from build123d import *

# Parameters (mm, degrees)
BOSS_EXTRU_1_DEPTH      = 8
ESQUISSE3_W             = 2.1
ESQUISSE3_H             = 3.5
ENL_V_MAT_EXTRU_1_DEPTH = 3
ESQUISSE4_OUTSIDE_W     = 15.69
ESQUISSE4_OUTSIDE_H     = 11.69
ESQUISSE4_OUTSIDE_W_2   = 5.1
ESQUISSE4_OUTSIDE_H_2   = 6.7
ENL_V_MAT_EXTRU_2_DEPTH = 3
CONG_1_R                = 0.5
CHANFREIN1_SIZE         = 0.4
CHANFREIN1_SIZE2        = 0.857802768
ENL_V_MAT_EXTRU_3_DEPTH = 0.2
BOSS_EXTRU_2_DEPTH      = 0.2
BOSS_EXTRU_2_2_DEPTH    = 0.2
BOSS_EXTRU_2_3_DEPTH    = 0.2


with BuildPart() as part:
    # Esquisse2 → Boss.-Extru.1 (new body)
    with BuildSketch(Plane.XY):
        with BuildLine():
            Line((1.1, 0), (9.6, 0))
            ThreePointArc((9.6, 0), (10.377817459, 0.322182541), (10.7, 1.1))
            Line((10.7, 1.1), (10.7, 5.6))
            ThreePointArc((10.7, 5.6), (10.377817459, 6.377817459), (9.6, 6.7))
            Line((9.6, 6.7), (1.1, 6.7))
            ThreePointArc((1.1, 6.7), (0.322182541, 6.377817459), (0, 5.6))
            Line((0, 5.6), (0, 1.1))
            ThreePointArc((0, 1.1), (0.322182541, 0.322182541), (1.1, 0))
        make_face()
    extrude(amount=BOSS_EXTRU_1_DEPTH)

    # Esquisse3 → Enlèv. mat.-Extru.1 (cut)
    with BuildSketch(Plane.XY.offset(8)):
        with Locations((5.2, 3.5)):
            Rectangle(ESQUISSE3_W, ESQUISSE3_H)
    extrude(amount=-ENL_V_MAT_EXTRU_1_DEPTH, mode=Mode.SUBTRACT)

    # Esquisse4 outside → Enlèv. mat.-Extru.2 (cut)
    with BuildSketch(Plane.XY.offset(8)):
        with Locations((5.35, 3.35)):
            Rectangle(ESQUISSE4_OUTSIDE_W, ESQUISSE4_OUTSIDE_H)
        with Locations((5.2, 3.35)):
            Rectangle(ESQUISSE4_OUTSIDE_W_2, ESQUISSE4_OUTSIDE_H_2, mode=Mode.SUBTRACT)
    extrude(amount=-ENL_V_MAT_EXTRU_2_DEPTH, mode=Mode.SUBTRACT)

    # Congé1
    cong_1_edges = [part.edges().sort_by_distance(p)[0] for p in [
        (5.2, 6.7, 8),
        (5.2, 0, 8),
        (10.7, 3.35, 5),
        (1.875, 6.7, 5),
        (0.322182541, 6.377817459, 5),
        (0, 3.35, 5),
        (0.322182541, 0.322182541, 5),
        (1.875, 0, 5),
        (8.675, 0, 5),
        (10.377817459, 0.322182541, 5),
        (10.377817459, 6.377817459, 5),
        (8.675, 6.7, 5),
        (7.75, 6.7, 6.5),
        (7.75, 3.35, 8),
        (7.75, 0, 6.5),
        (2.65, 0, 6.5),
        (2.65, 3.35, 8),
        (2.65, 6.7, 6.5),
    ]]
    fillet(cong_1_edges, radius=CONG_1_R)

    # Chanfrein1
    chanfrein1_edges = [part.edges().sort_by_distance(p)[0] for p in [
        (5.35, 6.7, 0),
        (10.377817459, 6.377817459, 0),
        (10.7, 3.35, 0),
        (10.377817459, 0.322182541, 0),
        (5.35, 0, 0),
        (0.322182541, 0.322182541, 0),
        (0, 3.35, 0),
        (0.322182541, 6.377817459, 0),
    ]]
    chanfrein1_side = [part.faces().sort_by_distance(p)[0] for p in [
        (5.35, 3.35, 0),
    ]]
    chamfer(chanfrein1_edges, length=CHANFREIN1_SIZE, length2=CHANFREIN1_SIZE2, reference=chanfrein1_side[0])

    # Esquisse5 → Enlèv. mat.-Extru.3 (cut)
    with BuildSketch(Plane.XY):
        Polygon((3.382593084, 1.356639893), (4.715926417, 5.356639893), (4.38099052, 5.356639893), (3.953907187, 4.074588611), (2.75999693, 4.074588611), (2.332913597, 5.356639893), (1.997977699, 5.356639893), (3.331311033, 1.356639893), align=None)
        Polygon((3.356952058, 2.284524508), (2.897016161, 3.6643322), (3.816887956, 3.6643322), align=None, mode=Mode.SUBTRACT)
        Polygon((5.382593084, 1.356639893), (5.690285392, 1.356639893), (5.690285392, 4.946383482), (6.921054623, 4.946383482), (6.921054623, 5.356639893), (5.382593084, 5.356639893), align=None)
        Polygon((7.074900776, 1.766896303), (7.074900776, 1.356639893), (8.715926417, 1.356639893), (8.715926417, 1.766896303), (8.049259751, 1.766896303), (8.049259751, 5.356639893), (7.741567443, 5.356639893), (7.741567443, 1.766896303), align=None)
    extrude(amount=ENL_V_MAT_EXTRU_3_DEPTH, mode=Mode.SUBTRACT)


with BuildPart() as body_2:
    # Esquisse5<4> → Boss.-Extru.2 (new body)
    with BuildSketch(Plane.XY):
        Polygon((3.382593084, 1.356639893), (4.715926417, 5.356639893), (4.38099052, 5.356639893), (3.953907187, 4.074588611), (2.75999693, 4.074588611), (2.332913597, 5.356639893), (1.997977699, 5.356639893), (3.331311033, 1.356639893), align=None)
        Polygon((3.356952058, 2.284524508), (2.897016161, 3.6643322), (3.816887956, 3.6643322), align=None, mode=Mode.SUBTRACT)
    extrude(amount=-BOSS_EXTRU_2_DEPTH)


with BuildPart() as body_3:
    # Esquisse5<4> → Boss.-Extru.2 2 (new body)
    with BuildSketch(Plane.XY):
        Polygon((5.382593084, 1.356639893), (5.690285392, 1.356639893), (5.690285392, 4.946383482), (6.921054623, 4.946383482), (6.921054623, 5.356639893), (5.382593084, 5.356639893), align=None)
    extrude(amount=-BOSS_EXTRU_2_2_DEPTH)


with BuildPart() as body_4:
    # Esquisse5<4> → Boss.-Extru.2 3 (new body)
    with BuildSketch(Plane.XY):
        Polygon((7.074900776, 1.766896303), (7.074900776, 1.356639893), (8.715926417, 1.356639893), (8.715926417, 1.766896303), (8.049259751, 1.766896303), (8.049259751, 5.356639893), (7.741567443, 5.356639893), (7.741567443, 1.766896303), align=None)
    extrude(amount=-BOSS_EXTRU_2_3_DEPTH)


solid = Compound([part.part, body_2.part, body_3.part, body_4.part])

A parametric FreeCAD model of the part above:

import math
import FreeCAD as App
import Part
import Sketcher
Q = App.Units.Quantity


def edges_at(feature, points):
    """Names of the edges that pass closest to the given points."""
    edges = feature.Shape.Edges
    near = lambda p: min(range(len(edges)), key=lambda i: edges[i].distToShape(Part.Vertex(*p))[0])
    return sorted({f"Edge{near(p) + 1}" for p in points})


def add_polygon(sketch, points):
    """Adds a closed chain of lines whose ends are joined by coincident constraints."""
    first, n = sketch.GeometryCount, len(points)
    for a, b in zip(points, points[1:] + points[:1]):
        sketch.addGeometry(Part.LineSegment(App.Vector(*a, 0), App.Vector(*b, 0)), False)
    for i in range(n):
        sketch.addConstraint(Sketcher.Constraint("Coincident", first + i, 2, first + (i + 1) % n, 1))

doc = App.newDocument("Part")
params = doc.addObject("Spreadsheet::Sheet", "Params")
for row, (alias, value) in enumerate([
    ("sketch1_radius", "1.1 mm"),
    ("sketch1_width", "8.5 mm"),
    ("sketch1_height", "4.5 mm"),
    ("pad1_length", "8 mm"),
    ("sketch2_width", "2.1 mm"),
    ("sketch2_height", "3.5 mm"),
    ("pocket1_length", "3 mm"),
    ("sketch3_width", "5.1 mm"),
    ("sketch3_height", "6.7 mm"),
    ("sketch3_width2", "15.69 mm"),
    ("sketch3_height2", "11.69 mm"),
    ("pocket2_length", "3 mm"),
    ("fillet_radius", "0.5 mm"),
    ("chamfer_size", "0.4 mm"),
    ("chamfer_size2", "0.857803 mm"),
    ("sketch4_height", "4 mm"),
    ("pocket3_length", "0.2 mm"),
    ("pad2_length", "0.2 mm"),
    ("sketch6_height", "4 mm"),
    ("pad3_length", "0.2 mm"),
    ("pad4_length", "0.2 mm"),
], start=1):
    params.set(f"A{row}", alias)
    params.set(f"B{row}", "=" + value)
    params.setAlias(f"B{row}", alias)

body = doc.addObject("PartDesign::Body", "Body")

# Sketch on XY plane
sketch1 = doc.addObject("Sketcher::SketchObject", "Sketch")
body.addObject(sketch1)
sketch1.AttachmentSupport = (doc.XY_Plane, [""])
sketch1.MapMode = "FlatFace"
sketch1.addGeometry([
    Part.LineSegment(App.Vector(1.1, 0, 0), App.Vector(9.6, 0, 0)),  # 0
    Part.ArcOfCircle(Part.Circle(App.Vector(9.6, 1.1, 0), App.Vector(0, 0, 1), 1.1), math.radians(-90), math.radians(0)),  # 1
    Part.LineSegment(App.Vector(10.7, 1.1, 0), App.Vector(10.7, 5.6, 0)),  # 2
    Part.ArcOfCircle(Part.Circle(App.Vector(9.6, 5.6, 0), App.Vector(0, 0, 1), 1.1), math.radians(0), math.radians(90)),  # 3
    Part.LineSegment(App.Vector(9.6, 6.7, 0), App.Vector(1.1, 6.7, 0)),  # 4
    Part.ArcOfCircle(Part.Circle(App.Vector(1.1, 5.6, 0), App.Vector(0, 0, 1), 1.1), math.radians(90), math.radians(180)),  # 5
    Part.LineSegment(App.Vector(0, 5.6, 0), App.Vector(0, 1.1, 0)),  # 6
    Part.ArcOfCircle(Part.Circle(App.Vector(1.1, 1.1, 0), App.Vector(0, 0, 1), 1.1), math.radians(-180), math.radians(-90)),  # 7
], False)
sketch1.addConstraint([
    Sketcher.Constraint("Tangent", 0, 2, 1, 1),
    Sketcher.Constraint("Tangent", 1, 2, 2, 1),
    Sketcher.Constraint("Tangent", 2, 2, 3, 1),
    Sketcher.Constraint("Tangent", 3, 2, 4, 1),
    Sketcher.Constraint("Tangent", 4, 2, 5, 1),
    Sketcher.Constraint("Tangent", 5, 2, 6, 1),
    Sketcher.Constraint("Tangent", 6, 2, 7, 1),
    Sketcher.Constraint("Tangent", 7, 2, 0, 1),
    Sketcher.Constraint("Horizontal", 0),
    Sketcher.Constraint("Vertical", 2),
    Sketcher.Constraint("Horizontal", 4),
    Sketcher.Constraint("Vertical", 6),
    Sketcher.Constraint("Equal", 1, 3),
    Sketcher.Constraint("Equal", 3, 5),
    Sketcher.Constraint("Equal", 5, 7),
    Sketcher.Constraint("PointOnObject", 0, 2, -1),
    Sketcher.Constraint("PointOnObject", 5, 2, -2),
    Sketcher.Constraint("Radius", 1, Q("1.1 mm")),
    Sketcher.Constraint("DistanceX", 0, 1, 0, 2, Q("8.5 mm")),
    Sketcher.Constraint("DistanceY", 2, 1, 2, 2, Q("4.5 mm")),
])
sketch1.setExpression("Constraints[17]", "Params.sketch1_radius")
sketch1.setExpression("Constraints[18]", "Params.sketch1_width")
sketch1.setExpression("Constraints[19]", "Params.sketch1_height")
pad1 = doc.addObject("PartDesign::Pad", "Pad")
body.addObject(pad1)
pad1.Profile = sketch1
pad1.setExpression("Length", "Params.pad1_length")

# Sketch on XY plane
sketch2 = doc.addObject("Sketcher::SketchObject", "Sketch001")
body.addObject(sketch2)
sketch2.AttachmentSupport = (doc.XY_Plane, [""])
sketch2.MapMode = "FlatFace"
sketch2.AttachmentOffset = App.Placement(App.Vector(0, 0, 8), App.Rotation())
add_polygon(sketch2, [(4.15, 5.25), (4.15, 1.75), (6.25, 1.75), (6.25, 5.25)])  # lines 0-3
sketch2.addConstraint([
    Sketcher.Constraint("Vertical", 0),
    Sketcher.Constraint("Horizontal", 1),
    Sketcher.Constraint("Vertical", 2),
    Sketcher.Constraint("Horizontal", 3),
    Sketcher.Constraint("DistanceX", 1, 1, 1, 2, Q("2.1 mm")),
    Sketcher.Constraint("DistanceY", 0, 2, 0, 1, Q("3.5 mm")),
    Sketcher.Constraint("DistanceX", -1, 1, 0, 2, Q("4.15 mm")),
    Sketcher.Constraint("DistanceY", -1, 1, 0, 2, Q("1.75 mm")),
])
sketch2.setExpression("Constraints[8]", "Params.sketch2_width")
sketch2.setExpression("Constraints[9]", "Params.sketch2_height")
pocket1 = doc.addObject("PartDesign::Pocket", "Pocket")
body.addObject(pocket1)
pocket1.Profile = sketch2
pocket1.setExpression("Length", "Params.pocket1_length")

# Sketch on XY plane
sketch3 = doc.addObject("Sketcher::SketchObject", "Sketch002")
body.addObject(sketch3)
sketch3.AttachmentSupport = (doc.XY_Plane, [""])
sketch3.MapMode = "FlatFace"
sketch3.AttachmentOffset = App.Placement(App.Vector(0, 0, 8), App.Rotation())
add_polygon(sketch3, [(-2.495, 9.195), (-2.495, -2.495), (13.195, -2.495), (13.195, 9.195)])  # lines 0-3
add_polygon(sketch3, [(7.75, 0), (2.65, 0), (2.65, 6.7), (7.75, 6.7)])  # lines 4-7
sketch3.addConstraint([
    Sketcher.Constraint("Vertical", 0),
    Sketcher.Constraint("Horizontal", 1),
    Sketcher.Constraint("Vertical", 2),
    Sketcher.Constraint("Horizontal", 3),
    Sketcher.Constraint("Horizontal", 4),
    Sketcher.Constraint("Vertical", 5),
    Sketcher.Constraint("Horizontal", 6),
    Sketcher.Constraint("Vertical", 7),
    Sketcher.Constraint("PointOnObject", 4, 2, -1),
    Sketcher.Constraint("DistanceX", 4, 2, 4, 1, Q("5.1 mm")),
    Sketcher.Constraint("DistanceY", 5, 1, 5, 2, Q("6.7 mm")),
    Sketcher.Constraint("DistanceX", 1, 1, 1, 2, Q("15.69 mm")),
    Sketcher.Constraint("DistanceY", 0, 2, 0, 1, Q("11.69 mm")),
    Sketcher.Constraint("DistanceX", -1, 1, 4, 2, Q("2.65 mm")),
    Sketcher.Constraint("DistanceX", 0, 2, -1, 1, Q("2.495 mm")),
    Sketcher.Constraint("DistanceY", 0, 2, -1, 1, Q("2.495 mm")),
])
sketch3.setExpression("Constraints[17]", "Params.sketch3_width")
sketch3.setExpression("Constraints[18]", "Params.sketch3_height")
sketch3.setExpression("Constraints[19]", "Params.sketch3_width2")
sketch3.setExpression("Constraints[20]", "Params.sketch3_height2")
pocket2 = doc.addObject("PartDesign::Pocket", "Pocket001")
body.addObject(pocket2)
pocket2.Profile = sketch3
pocket2.setExpression("Length", "Params.pocket2_length")
doc.recompute()

fillet = doc.addObject("PartDesign::Fillet", "Fillet")
body.addObject(fillet)
fillet.Base = (pocket2, edges_at(pocket2, [
    (5.2, 6.7, 8),
    (5.2, 0, 8),
    (10.7, 3.35, 5),
    (1.875, 6.7, 5),
    (0.322, 6.378, 5),
    (0, 3.35, 5),
    (0.322, 0.322, 5),
    (1.875, 0, 5),
    (8.675, 0, 5),
    (10.378, 0.322, 5),
    (10.378, 6.378, 5),
    (8.675, 6.7, 5),
    (7.75, 6.7, 6.5),
    (7.75, 3.35, 8),
    (7.75, 0, 6.5),
    (2.65, 0, 6.5),
    (2.65, 3.35, 8),
    (2.65, 6.7, 6.5),
]))
fillet.setExpression("Radius", "Params.fillet_radius")
doc.recompute()

chamfer = doc.addObject("PartDesign::Chamfer", "Chamfer")
body.addObject(chamfer)
chamfer.Base = (fillet, edges_at(fillet, [
    (5.35, 6.7, 0),
    (10.378, 6.378, 0),
    (10.7, 3.35, 0),
    (10.378, 0.322, 0),
    (5.35, 0, 0),
    (0.322, 0.322, 0),
    (0, 3.35, 0),
    (0.322, 6.378, 0),
]))
chamfer.ChamferType = "Two distances"
chamfer.setExpression("Size", "Params.chamfer_size")
chamfer.setExpression("Size2", "Params.chamfer_size2")

# Sketch on XY plane
sketch4 = doc.addObject("Sketcher::SketchObject", "Sketch003")
body.addObject(sketch4)
sketch4.AttachmentSupport = (doc.XY_Plane, [""])
sketch4.MapMode = "FlatFace"
add_polygon(sketch4, [(3.382593, 1.35664), (4.715926, 5.35664), (4.380991, 5.35664), (3.953907, 4.074589), (2.759997, 4.074589), (2.332914, 5.35664), (1.997978, 5.35664), (3.331311, 1.35664)])  # lines 0-7
add_polygon(sketch4, [(3.816888, 3.664332), (3.356952, 2.284525), (2.897016, 3.664332)])  # lines 8-10
add_polygon(sketch4, [(5.382593, 1.35664), (5.690285, 1.35664), (5.690285, 4.946383), (6.921055, 4.946383), (6.921055, 5.35664), (5.382593, 5.35664)])  # lines 11-16
add_polygon(sketch4, [(7.074901, 1.766896), (7.074901, 1.35664), (8.715926, 1.35664), (8.715926, 1.766896), (8.04926, 1.766896), (8.04926, 5.35664), (7.741567, 5.35664), (7.741567, 1.766896)])  # lines 17-24
sketch4.addConstraint([
    Sketcher.Constraint("Horizontal", 1),
    Sketcher.Constraint("Horizontal", 3),
    Sketcher.Constraint("Horizontal", 5),
    Sketcher.Constraint("Horizontal", 7),
    Sketcher.Constraint("Horizontal", 10),
    Sketcher.Constraint("Horizontal", 11),
    Sketcher.Constraint("Vertical", 12),
    Sketcher.Constraint("Horizontal", 13),
    Sketcher.Constraint("Vertical", 14),
    Sketcher.Constraint("Horizontal", 15),
    Sketcher.Constraint("Vertical", 16),
    Sketcher.Constraint("Vertical", 17),
    Sketcher.Constraint("Horizontal", 18),
    Sketcher.Constraint("Vertical", 19),
    Sketcher.Constraint("Horizontal", 20),
    Sketcher.Constraint("Vertical", 21),
    Sketcher.Constraint("Horizontal", 22),
    Sketcher.Constraint("Vertical", 23),
    Sketcher.Constraint("Horizontal", 24),
    Sketcher.Constraint("Parallel", 0, 8),
    Sketcher.Constraint("Parallel", 6, 9),
    Sketcher.Constraint("Horizontal", 1, 2, 4, 2),
    Sketcher.Constraint("Horizontal", 7, 2, 11, 2),
    Sketcher.Constraint("Horizontal", 5, 2, 14, 2),
    Sketcher.Constraint("Horizontal", 16, 2, 17, 2),
    Sketcher.Constraint("Horizontal", 15, 2, 21, 2),
    Sketcher.Constraint("Horizontal", 20, 2, 23, 2),
    Sketcher.Constraint("Equal", 1, 5),
    Sketcher.Constraint("Equal", 11, 22),
    Sketcher.Constraint("Equal", 20, 24),
    Sketcher.Constraint("Equal", 14, 17),
    Sketcher.Constraint("Equal", 2, 4),
    Sketcher.Constraint("Equal", 0, 6),
    Sketcher.Constraint("DistanceY", 16, 2, 16, 1, Q("4 mm")),
    Sketcher.Constraint("DistanceX", 7, 2, 16, 2, Q("2 mm")),
    Sketcher.Constraint("DistanceX", 3, 2, 3, 1, Q("1.19391 mm")),
    Sketcher.Constraint("DistanceX", 10, 1, 10, 2, Q("0.919872 mm")),
    Sketcher.Constraint("DistanceX", 13, 1, 13, 2, Q("1.230769 mm")),
    Sketcher.Constraint("DistanceX", 15, 2, 15, 1, Q("1.538462 mm")),
    Sketcher.Constraint("DistanceX", -1, 1, 17, 2, Q("7.074901 mm")),
    Sketcher.Constraint("Distance", 0, Q("4.21637 mm")),
    Sketcher.Constraint("DistanceX", 1, 2, 1, 1, Q("0.334936 mm")),
    Sketcher.Constraint("DistanceX", 7, 1, 7, 2, Q("0.051282 mm")),
    Sketcher.Constraint("DistanceX", 18, 1, 18, 2, Q("1.641026 mm")),
    Sketcher.Constraint("DistanceY", 12, 1, 12, 2, Q("3.589744 mm")),
    Sketcher.Constraint("DistanceY", -1, 1, 0, 2, Q("5.35664 mm")),
    Sketcher.Constraint("DistanceX", -1, 1, 1, 2, Q("4.380991 mm")),
    Sketcher.Constraint("DistanceY", -1, 1, 2, 2, Q("4.074589 mm")),
    Sketcher.Constraint("DistanceX", 6, 2, 8, 2, Q("0.025641 mm")),
    Sketcher.Constraint("DistanceY", 10, 2, 12, 2, Q("1.282051 mm")),
])
sketch4.setExpression("Constraints[58]", "Params.sketch4_height")
pocket3 = doc.addObject("PartDesign::Pocket", "Pocket002")
body.addObject(pocket3)
pocket3.Profile = sketch4
pocket3.setExpression("Length", "Params.pocket3_length")
pocket3.Reversed = True
body2 = doc.addObject("PartDesign::Body", "Body001")

# Sketch on XY plane
sketch5 = doc.addObject("Sketcher::SketchObject", "Sketch004")
body2.addObject(sketch5)
sketch5.AttachmentSupport = (doc.getObject("XY_Plane001"), [""])
sketch5.MapMode = "FlatFace"
add_polygon(sketch5, [(3.382593, 1.35664), (4.715926, 5.35664), (4.380991, 5.35664), (3.953907, 4.074589), (2.759997, 4.074589), (2.332914, 5.35664), (1.997978, 5.35664), (3.331311, 1.35664)])  # lines 0-7
add_polygon(sketch5, [(3.816888, 3.664332), (3.356952, 2.284525), (2.897016, 3.664332)])  # lines 8-10
sketch5.addConstraint([
    Sketcher.Constraint("Horizontal", 1),
    Sketcher.Constraint("Horizontal", 3),
    Sketcher.Constraint("Horizontal", 5),
    Sketcher.Constraint("Horizontal", 7),
    Sketcher.Constraint("Horizontal", 10),
    Sketcher.Constraint("Parallel", 0, 8),
    Sketcher.Constraint("Parallel", 6, 9),
    Sketcher.Constraint("Horizontal", 1, 2, 4, 2),
    Sketcher.Constraint("Equal", 1, 5),
    Sketcher.Constraint("Equal", 2, 4),
    Sketcher.Constraint("Equal", 0, 6),
    Sketcher.Constraint("DistanceY", 6, 2, 4, 2, Q("4 mm")),
    Sketcher.Constraint("DistanceX", 3, 2, 3, 1, Q("1.19391 mm")),
    Sketcher.Constraint("DistanceX", 10, 1, 10, 2, Q("0.919872 mm")),
    Sketcher.Constraint("Distance", 0, Q("4.21637 mm")),
    Sketcher.Constraint("DistanceX", 1, 2, 1, 1, Q("0.334936 mm")),
    Sketcher.Constraint("DistanceX", 7, 1, 7, 2, Q("0.051282 mm")),
    Sketcher.Constraint("DistanceY", -1, 1, 0, 2, Q("5.35664 mm")),
    Sketcher.Constraint("DistanceX", -1, 1, 1, 2, Q("4.380991 mm")),
    Sketcher.Constraint("DistanceY", -1, 1, 2, 2, Q("4.074589 mm")),
    Sketcher.Constraint("DistanceX", 6, 2, 8, 2, Q("0.025641 mm")),
    Sketcher.Constraint("DistanceY", -1, 1, 8, 2, Q("2.284525 mm")),
])
pad2 = doc.addObject("PartDesign::Pad", "Pad001")
body2.addObject(pad2)
pad2.Profile = sketch5
pad2.setExpression("Length", "Params.pad2_length")
pad2.Reversed = True
body3 = doc.addObject("PartDesign::Body", "Body002")

# Sketch on XY plane
sketch6 = doc.addObject("Sketcher::SketchObject", "Sketch005")
body3.addObject(sketch6)
sketch6.AttachmentSupport = (doc.getObject("XY_Plane002"), [""])
sketch6.MapMode = "FlatFace"
add_polygon(sketch6, [(5.382593, 1.35664), (5.690285, 1.35664), (5.690285, 4.946383), (6.921055, 4.946383), (6.921055, 5.35664), (5.382593, 5.35664)])  # lines 0-5
sketch6.addConstraint([
    Sketcher.Constraint("Horizontal", 0),
    Sketcher.Constraint("Vertical", 1),
    Sketcher.Constraint("Horizontal", 2),
    Sketcher.Constraint("Vertical", 3),
    Sketcher.Constraint("Horizontal", 4),
    Sketcher.Constraint("Vertical", 5),
    Sketcher.Constraint("DistanceY", 5, 2, 5, 1, Q("4 mm")),
    Sketcher.Constraint("DistanceX", 2, 1, 2, 2, Q("1.230769 mm")),
    Sketcher.Constraint("DistanceX", 4, 2, 4, 1, Q("1.538462 mm")),
    Sketcher.Constraint("DistanceY", 1, 1, 1, 2, Q("3.589744 mm")),
    Sketcher.Constraint("DistanceY", -1, 1, 0, 2, Q("1.35664 mm")),
    Sketcher.Constraint("DistanceX", -1, 1, 0, 2, Q("5.690285 mm")),
])
sketch6.setExpression("Constraints[12]", "Params.sketch6_height")
pad3 = doc.addObject("PartDesign::Pad", "Pad002")
body3.addObject(pad3)
pad3.Profile = sketch6
pad3.setExpression("Length", "Params.pad3_length")
pad3.Reversed = True
body4 = doc.addObject("PartDesign::Body", "Body003")

# Sketch on XY plane
sketch7 = doc.addObject("Sketcher::SketchObject", "Sketch006")
body4.addObject(sketch7)
sketch7.AttachmentSupport = (doc.getObject("XY_Plane003"), [""])
sketch7.MapMode = "FlatFace"
add_polygon(sketch7, [(7.074901, 1.766896), (7.074901, 1.35664), (8.715926, 1.35664), (8.715926, 1.766896), (8.04926, 1.766896), (8.04926, 5.35664), (7.741567, 5.35664), (7.741567, 1.766896)])  # lines 0-7
sketch7.addConstraint([
    Sketcher.Constraint("Vertical", 0),
    Sketcher.Constraint("Horizontal", 1),
    Sketcher.Constraint("Vertical", 2),
    Sketcher.Constraint("Horizontal", 3),
    Sketcher.Constraint("Vertical", 4),
    Sketcher.Constraint("Horizontal", 5),
    Sketcher.Constraint("Vertical", 6),
    Sketcher.Constraint("Horizontal", 7),
    Sketcher.Constraint("Horizontal", 3, 2, 6, 2),
    Sketcher.Constraint("Equal", 3, 7),
    Sketcher.Constraint("DistanceY", 1, 2, 4, 2, Q("4 mm")),
    Sketcher.Constraint("DistanceX", -1, 1, 0, 2, Q("7.074901 mm")),
    Sketcher.Constraint("DistanceX", 1, 1, 1, 2, Q("1.641026 mm")),
    Sketcher.Constraint("DistanceX", 3, 2, 3, 1, Q("0.666667 mm")),
    Sketcher.Constraint("DistanceY", 0, 2, 0, 1, Q("0.410256 mm")),
    Sketcher.Constraint("DistanceY", -1, 1, 0, 2, Q("1.35664 mm")),
])
pad4 = doc.addObject("PartDesign::Pad", "Pad003")
body4.addObject(pad4)
pad4.Profile = sketch7
pad4.setExpression("Length", "Params.pad4_length")
pad4.Reversed = True

doc.recompute()
